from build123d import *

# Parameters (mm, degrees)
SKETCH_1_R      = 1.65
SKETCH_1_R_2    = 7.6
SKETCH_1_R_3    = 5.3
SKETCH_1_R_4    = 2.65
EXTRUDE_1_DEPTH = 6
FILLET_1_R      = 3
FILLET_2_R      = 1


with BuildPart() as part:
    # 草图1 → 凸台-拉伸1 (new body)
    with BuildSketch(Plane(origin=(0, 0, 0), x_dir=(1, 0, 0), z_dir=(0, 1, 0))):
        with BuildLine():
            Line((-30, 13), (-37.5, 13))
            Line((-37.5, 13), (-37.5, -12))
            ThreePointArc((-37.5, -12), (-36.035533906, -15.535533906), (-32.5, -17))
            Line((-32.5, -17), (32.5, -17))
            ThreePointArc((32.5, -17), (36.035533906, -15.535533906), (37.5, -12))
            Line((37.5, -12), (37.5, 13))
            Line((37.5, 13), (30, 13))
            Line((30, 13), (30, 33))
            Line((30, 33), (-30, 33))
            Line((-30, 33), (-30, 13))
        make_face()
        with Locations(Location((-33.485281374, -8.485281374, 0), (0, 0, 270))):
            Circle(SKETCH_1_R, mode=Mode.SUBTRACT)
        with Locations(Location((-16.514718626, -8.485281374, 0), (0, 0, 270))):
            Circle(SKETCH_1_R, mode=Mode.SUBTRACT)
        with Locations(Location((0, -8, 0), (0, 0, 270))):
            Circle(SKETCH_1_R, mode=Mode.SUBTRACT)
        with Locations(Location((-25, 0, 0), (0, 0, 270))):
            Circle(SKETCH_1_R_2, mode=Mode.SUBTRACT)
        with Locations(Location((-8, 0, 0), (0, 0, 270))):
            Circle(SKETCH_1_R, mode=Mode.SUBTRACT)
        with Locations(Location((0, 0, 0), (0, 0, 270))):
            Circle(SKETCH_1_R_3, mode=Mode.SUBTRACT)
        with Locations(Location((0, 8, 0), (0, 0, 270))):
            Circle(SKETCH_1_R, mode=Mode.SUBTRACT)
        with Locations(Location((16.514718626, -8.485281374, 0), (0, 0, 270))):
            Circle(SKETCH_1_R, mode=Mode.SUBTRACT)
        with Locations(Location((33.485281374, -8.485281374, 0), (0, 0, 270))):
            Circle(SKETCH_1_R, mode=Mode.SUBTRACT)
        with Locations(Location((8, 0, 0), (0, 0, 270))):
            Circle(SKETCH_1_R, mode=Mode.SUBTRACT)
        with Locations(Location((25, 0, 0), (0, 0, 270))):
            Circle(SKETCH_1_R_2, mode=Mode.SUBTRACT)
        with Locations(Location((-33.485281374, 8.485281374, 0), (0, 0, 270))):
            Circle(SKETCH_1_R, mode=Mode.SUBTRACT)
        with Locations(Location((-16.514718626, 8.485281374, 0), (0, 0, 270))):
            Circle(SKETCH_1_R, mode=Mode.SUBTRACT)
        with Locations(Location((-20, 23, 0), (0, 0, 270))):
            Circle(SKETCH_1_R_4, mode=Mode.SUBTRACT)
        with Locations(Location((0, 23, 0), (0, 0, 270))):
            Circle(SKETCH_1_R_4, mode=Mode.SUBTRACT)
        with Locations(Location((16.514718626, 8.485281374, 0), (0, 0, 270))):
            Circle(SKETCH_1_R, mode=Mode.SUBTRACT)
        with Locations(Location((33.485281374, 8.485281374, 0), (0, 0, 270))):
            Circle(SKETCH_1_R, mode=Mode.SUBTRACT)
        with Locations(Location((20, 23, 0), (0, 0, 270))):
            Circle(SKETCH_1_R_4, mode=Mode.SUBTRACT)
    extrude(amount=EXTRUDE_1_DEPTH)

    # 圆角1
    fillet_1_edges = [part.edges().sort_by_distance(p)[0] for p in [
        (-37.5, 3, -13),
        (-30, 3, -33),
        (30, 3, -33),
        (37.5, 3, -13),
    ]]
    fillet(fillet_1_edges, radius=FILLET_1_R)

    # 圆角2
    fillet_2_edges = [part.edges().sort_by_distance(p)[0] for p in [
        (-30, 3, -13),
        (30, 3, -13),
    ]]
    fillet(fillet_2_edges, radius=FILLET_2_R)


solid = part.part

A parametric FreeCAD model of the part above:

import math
import FreeCAD as App
import Part
import Sketcher


def edges_at(feature, points):
    """Names of the edges that pass closest to the given points."""
    edges = feature.Shape.Edges
    near = lambda p: min(range(len(edges)), key=lambda i: edges[i].distToShape(Part.Vertex(*p))[0])
    return sorted({f"Edge{near(p) + 1}" for p in points})

doc = App.newDocument("Part")
body = doc.addObject("PartDesign::Body", "Body")

# Sketch on XZ plane
sketch1 = body.newObject("Sketcher::SketchObject", "Sketch")
sketch1.AttachmentSupport = (doc.getObject("XZ_Plane"), [""])
sketch1.MapMode = "FlatFace"
sketch1.addGeometry(Part.LineSegment(App.Vector(-30, -13, 0), App.Vector(-37.5, -13, 0)), False)
sketch1.addGeometry(Part.LineSegment(App.Vector(-37.5, -13, 0), App.Vector(-37.5, 12, 0)), False)
sketch1.addGeometry(Part.ArcOfCircle(Part.Circle(App.Vector(-32.5, 12, 0), App.Vector(0, 0, 1), 5), math.radians(90), math.radians(180)), False)
sketch1.addGeometry(Part.LineSegment(App.Vector(-32.5, 17, 0), App.Vector(32.5, 17, 0)), False)
sketch1.addGeometry(Part.ArcOfCircle(Part.Circle(App.Vector(32.5, 12, 0), App.Vector(0, 0, 1), 5), math.radians(0), math.radians(90)), False)
sketch1.addGeometry(Part.LineSegment(App.Vector(37.5, 12, 0), App.Vector(37.5, -13, 0)), False)
sketch1.addGeometry(Part.LineSegment(App.Vector(37.5, -13, 0), App.Vector(30, -13, 0)), False)
sketch1.addGeometry(Part.LineSegment(App.Vector(30, -13, 0), App.Vector(30, -33, 0)), False)
sketch1.addGeometry(Part.LineSegment(App.Vector(30, -33, 0), App.Vector(-30, -33, 0)), False)
sketch1.addGeometry(Part.LineSegment(App.Vector(-30, -33, 0), App.Vector(-30, -13, 0)), False)
sketch1.addGeometry(Part.Circle(App.Vector(-33.5, 8.5, 0), App.Vector(0, 0, 1), 1.6), False)
sketch1.addGeometry(Part.Circle(App.Vector(-16.5, 8.5, 0), App.Vector(0, 0, 1), 1.6), False)
sketch1.addGeometry(Part.Circle(App.Vector(-25, 0, 0), App.Vector(0, 0, 1), 7.6), False)
sketch1.addGeometry(Part.Circle(App.Vector(-8, 0, 0), App.Vector(0, 0, 1), 1.6), False)
sketch1.addGeometry(Part.Circle(App.Vector(0, 8, 0), App.Vector(0, 0, 1), 1.6), False)
sketch1.addGeometry(Part.Circle(App.Vector(16.5, 8.5, 0), App.Vector(0, 0, 1), 1.6), False)
sketch1.addGeometry(Part.Circle(App.Vector(33.5, 8.5, 0), App.Vector(0, 0, 1), 1.6), False)
sketch1.addGeometry(Part.Circle(App.Vector(0, 0, 0), App.Vector(0, 0, 1), 5.3), False)
sketch1.addGeometry(Part.Circle(App.Vector(8, 0, 0), App.Vector(0, 0, 1), 1.6), False)
sketch1.addGeometry(Part.Circle(App.Vector(25, 0, 0), App.Vector(0, 0, 1), 7.6), False)
sketch1.addGeometry(Part.Circle(App.Vector(-33.5, -8.5, 0), App.Vector(0, 0, 1), 1.6), False)
sketch1.addGeometry(Part.Circle(App.Vector(-16.5, -8.5, 0), App.Vector(0, 0, 1), 1.6), False)
sketch1.addGeometry(Part.Circle(App.Vector(-20, -23, 0), App.Vector(0, 0, 1), 2.6), False)
sketch1.addGeometry(Part.Circle(App.Vector(0, -8, 0), App.Vector(0, 0, 1), 1.6), False)
sketch1.addGeometry(Part.Circle(App.Vector(16.5, -8.5, 0), App.Vector(0, 0, 1), 1.6), False)
sketch1.addGeometry(Part.Circle(App.Vector(33.5, -8.5, 0), App.Vector(0, 0, 1), 1.6), False)
sketch1.addGeometry(Part.Circle(App.Vector(0, -23, 0), App.Vector(0, 0, 1), 2.6), False)
sketch1.addGeometry(Part.Circle(App.Vector(20, -23, 0), App.Vector(0, 0, 1), 2.6), False)
sketch1.addConstraint(Sketcher.Constraint("Coincident", 0, 2, 1, 1))
sketch1.addConstraint(Sketcher.Constraint("Tangent", 1, 2, 2, 2))
sketch1.addConstraint(Sketcher.Constraint("Tangent", 2, 1, 3, 1))
sketch1.addConstraint(Sketcher.Constraint("Tangent", 3, 2, 4, 2))
sketch1.addConstraint(Sketcher.Constraint("Tangent", 4, 1, 5, 1))
sketch1.addConstraint(Sketcher.Constraint("Coincident", 5, 2, 6, 1))
sketch1.addConstraint(Sketcher.Constraint("Coincident", 6, 2, 7, 1))
sketch1.addConstraint(Sketcher.Constraint("Coincident", 7, 2, 8, 1))
sketch1.addConstraint(Sketcher.Constraint("Coincident", 8, 2, 9, 1))
sketch1.addConstraint(Sketcher.Constraint("Coincident", 9, 2, 0, 1))
sketch1.addConstraint(Sketcher.Constraint("Horizontal", 0))
sketch1.addConstraint(Sketcher.Constraint("Vertical", 1))
sketch1.addConstraint(Sketcher.Constraint("Horizontal", 3))
sketch1.addConstraint(Sketcher.Constraint("Vertical", 5))
sketch1.addConstraint(Sketcher.Constraint("Horizontal", 6))
sketch1.addConstraint(Sketcher.Constraint("Vertical", 7))
sketch1.addConstraint(Sketcher.Constraint("Horizontal", 8))
sketch1.addConstraint(Sketcher.Constraint("Vertical", 9))
sketch1.addConstraint(Sketcher.Constraint("Coincident", 17, 3, -1, 1))
sketch1.addConstraint(Sketcher.Constraint("Equal", 2, 4))
sketch1.addConstraint(Sketcher.Constraint("Equal", 10, 11))
sketch1.addConstraint(Sketcher.Constraint("Equal", 11, 13))
sketch1.addConstraint(Sketcher.Constraint("Equal", 13, 14))
sketch1.addConstraint(Sketcher.Constraint("Equal", 14, 15))
sketch1.addConstraint(Sketcher.Constraint("Equal", 15, 16))
sketch1.addConstraint(Sketcher.Constraint("Equal", 16, 18))
sketch1.addConstraint(Sketcher.Constraint("Equal", 12, 19))
sketch1.addConstraint(Sketcher.Constraint("Equal", 18, 20))
sketch1.addConstraint(Sketcher.Constraint("Equal", 20, 21))
sketch1.addConstraint(Sketcher.Constraint("Equal", 21, 23))
sketch1.addConstraint(Sketcher.Constraint("Equal", 23, 24))
sketch1.addConstraint(Sketcher.Constraint("Equal", 24, 25))
sketch1.addConstraint(Sketcher.Constraint("Equal", 22, 26))
sketch1.addConstraint(Sketcher.Constraint("Equal", 26, 27))
sketch1.addConstraint(Sketcher.Constraint("Symmetric", 13, 3, 18, 3, -1, 1))
sketch1.addConstraint(Sketcher.Constraint("Symmetric", 12, 3, 19, 3, -1, 1))
sketch1.addConstraint(Sketcher.Constraint("Symmetric", 16, 3, 20, 3, -1, 1))
sketch1.addConstraint(Sketcher.Constraint("Symmetric", 15, 3, 21, 3, -1, 1))
sketch1.addConstraint(Sketcher.Constraint("Symmetric", 14, 3, 23, 3, -1, 1))
sketch1.addConstraint(Sketcher.Constraint("Symmetric", 11, 3, 24, 3, -1, 1))
sketch1.addConstraint(Sketcher.Constraint("Symmetric", 10, 3, 25, 3, -1, 1))
sketch1.addConstraint(Sketcher.Constraint("Symmetric", 11, 3, 15, 3, -2))
sketch1.addConstraint(Sketcher.Constraint("Symmetric", 10, 3, 16, 3, -2))
sketch1.addConstraint(Sketcher.Constraint("Symmetric", 22, 3, 27, 3, -2))
sketch1.addConstraint(Sketcher.Constraint("Symmetric", 0, 2, 5, 2, -2))
sketch1.addConstraint(Sketcher.Constraint("PointOnObject", 12, 3, -1))
sketch1.addConstraint(Sketcher.Constraint("PointOnObject", 13, 3, -1))
sketch1.addConstraint(Sketcher.Constraint("PointOnObject", 14, 3, -2))
sketch1.addConstraint(Sketcher.Constraint("PointOnObject", 26, 3, -2))
sketch1.addConstraint(Sketcher.Constraint("Horizontal", 10, 3, 11, 3))
sketch1.addConstraint(Sketcher.Constraint("Horizontal", 22, 3, 26, 3))
sketch1.addConstraint(Sketcher.Constraint("Equal", 0, 6))
sketch1.addConstraint(Sketcher.Constraint("Radius", 2, 5.0))
sketch1.addConstraint(Sketcher.Constraint("Diameter", 10, 3.3))
sketch1.addConstraint(Sketcher.Constraint("Diameter", 12, 15.2))
sketch1.addConstraint(Sketcher.Constraint("Diameter", 17, 10.6))
sketch1.addConstraint(Sketcher.Constraint("Diameter", 22, 5.3))
sketch1.addConstraint(Sketcher.Constraint("DistanceX", 3, 1, 3, 2, 65.0))
sketch1.addConstraint(Sketcher.Constraint("DistanceX", 8, 2, 8, 1, 60.0))
sketch1.addConstraint(Sketcher.Constraint("DistanceY", 1, 1, 1, 2, 25.0))
sketch1.addConstraint(Sketcher.Constraint("DistanceY", 7, 2, 7, 1, 20.0))
sketch1.addConstraint(Sketcher.Constraint("DistanceY", -1, 1, 2, 3, 12.0))
sketch1.addConstraint(Sketcher.Constraint("DistanceX", 12, 3, -1, 1, 25.0))
sketch1.addConstraint(Sketcher.Constraint("DistanceX", 13, 3, -1, 1, 8.0))
sketch1.addConstraint(Sketcher.Constraint("DistanceY", -1, 1, 14, 3, 8.0))
sketch1.addConstraint(Sketcher.Constraint("DistanceX", 22, 3, -1, 1, 20.0))
sketch1.addConstraint(Sketcher.Constraint("DistanceY", 22, 3, -1, 1, 23.0))
sketch1.addConstraint(Sketcher.Constraint("DistanceX", 11, 3, 16, 3, 50.0))
sketch1.addConstraint(Sketcher.Constraint("DistanceX", 10, 3, -1, 1, 33.485281))
sketch1.addConstraint(Sketcher.Constraint("DistanceY", -1, 1, 10, 3, 8.485281))
pad1 = body.newObject("PartDesign::Pad", "Pad")
pad1.Profile = sketch1
pad1.Length = 6
pad1.Reversed = True
doc.recompute()

fillet = body.newObject("PartDesign::Fillet", "Fillet")
fillet.Base = (pad1, edges_at(pad1, [
    (-37.5, 3, -13),
    (-30, 3, -33),
    (30, 3, -33),
    (37.5, 3, -13),
]))
fillet.Radius = 3
doc.recompute()

fillet2 = body.newObject("PartDesign::Fillet", "Fillet001")
fillet2.Base = (fillet, edges_at(fillet, [(-30, 3, -13), (30, 3, -13)]))
fillet2.Radius = 1

doc.recompute()
